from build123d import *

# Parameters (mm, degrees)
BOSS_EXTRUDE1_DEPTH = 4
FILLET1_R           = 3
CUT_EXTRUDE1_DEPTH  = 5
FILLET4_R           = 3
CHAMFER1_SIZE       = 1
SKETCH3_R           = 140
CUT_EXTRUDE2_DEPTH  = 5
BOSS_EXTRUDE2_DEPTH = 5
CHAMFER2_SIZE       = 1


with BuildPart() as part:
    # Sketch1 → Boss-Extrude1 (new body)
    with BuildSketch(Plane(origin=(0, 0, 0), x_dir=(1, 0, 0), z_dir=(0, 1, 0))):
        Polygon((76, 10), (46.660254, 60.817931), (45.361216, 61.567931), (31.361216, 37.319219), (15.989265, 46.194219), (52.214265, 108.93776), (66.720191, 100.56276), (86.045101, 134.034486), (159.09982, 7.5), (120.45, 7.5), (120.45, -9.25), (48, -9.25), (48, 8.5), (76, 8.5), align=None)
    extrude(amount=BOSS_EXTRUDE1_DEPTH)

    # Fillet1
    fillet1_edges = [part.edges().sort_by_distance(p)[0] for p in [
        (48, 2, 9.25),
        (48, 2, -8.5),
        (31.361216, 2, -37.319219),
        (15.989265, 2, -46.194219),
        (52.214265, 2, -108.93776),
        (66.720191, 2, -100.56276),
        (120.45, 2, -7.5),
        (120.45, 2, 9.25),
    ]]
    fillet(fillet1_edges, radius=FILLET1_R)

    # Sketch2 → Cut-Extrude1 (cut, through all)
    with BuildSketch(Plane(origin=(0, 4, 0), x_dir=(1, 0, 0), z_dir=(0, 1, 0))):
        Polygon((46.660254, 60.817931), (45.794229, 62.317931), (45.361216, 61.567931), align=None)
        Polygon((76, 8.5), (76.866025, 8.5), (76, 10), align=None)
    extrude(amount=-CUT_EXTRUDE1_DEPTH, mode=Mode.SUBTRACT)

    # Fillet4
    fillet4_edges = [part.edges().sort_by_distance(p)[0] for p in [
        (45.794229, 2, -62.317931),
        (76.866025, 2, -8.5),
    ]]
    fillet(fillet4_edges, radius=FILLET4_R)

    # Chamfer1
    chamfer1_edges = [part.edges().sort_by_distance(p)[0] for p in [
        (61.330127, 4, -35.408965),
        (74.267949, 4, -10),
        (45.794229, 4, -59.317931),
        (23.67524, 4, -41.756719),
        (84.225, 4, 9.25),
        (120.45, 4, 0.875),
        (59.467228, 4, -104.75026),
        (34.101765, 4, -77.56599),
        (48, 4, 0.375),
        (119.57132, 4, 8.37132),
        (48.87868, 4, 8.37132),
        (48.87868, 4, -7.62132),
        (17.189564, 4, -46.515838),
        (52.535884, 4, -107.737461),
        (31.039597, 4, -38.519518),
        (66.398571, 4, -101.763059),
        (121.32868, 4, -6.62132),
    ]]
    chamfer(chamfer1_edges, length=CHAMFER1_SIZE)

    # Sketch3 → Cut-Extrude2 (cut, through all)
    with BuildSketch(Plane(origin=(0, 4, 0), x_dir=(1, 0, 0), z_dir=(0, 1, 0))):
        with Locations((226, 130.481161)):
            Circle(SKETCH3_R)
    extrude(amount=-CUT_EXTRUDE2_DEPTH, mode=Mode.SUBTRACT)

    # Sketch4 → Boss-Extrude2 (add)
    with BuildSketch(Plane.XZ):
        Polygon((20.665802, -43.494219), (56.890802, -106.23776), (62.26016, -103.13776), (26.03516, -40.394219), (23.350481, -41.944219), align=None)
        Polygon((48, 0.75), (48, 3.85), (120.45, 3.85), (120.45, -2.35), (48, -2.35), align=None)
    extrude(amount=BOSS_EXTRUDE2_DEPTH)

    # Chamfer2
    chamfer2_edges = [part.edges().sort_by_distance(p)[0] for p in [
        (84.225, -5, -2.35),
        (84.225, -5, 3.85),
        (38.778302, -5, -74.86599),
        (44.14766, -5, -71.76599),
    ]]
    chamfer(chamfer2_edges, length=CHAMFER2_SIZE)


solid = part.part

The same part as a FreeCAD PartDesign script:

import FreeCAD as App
import Part
import Sketcher
from FreeCAD import Vector
Q = App.Units.Quantity


def edges_at(feature, points):
    """Names of the edges that pass closest to the given points."""
    edges = feature.Shape.Edges
    near = lambda p: min(range(len(edges)), key=lambda i: edges[i].distToShape(Part.Vertex(*p))[0])
    return sorted({f"Edge{near(p) + 1}" for p in points})

doc = App.newDocument("Part")
body = doc.addObject("PartDesign::Body", "Body")

# Sketch on XZ plane
sketch1 = body.newObject("Sketcher::SketchObject", "Sketch")
sketch1.AttachmentSupport = (doc.getObject("XZ_Plane"), [""])
sketch1.MapMode = "FlatFace"
sketch1.addGeometry([
    Part.LineSegment(Vector(46.7, -60.8, 0), Vector(76, -10, 0)),  # 0
    Part.LineSegment(Vector(76, -10, 0), Vector(76, -8.5, 0)),  # 1
    Part.LineSegment(Vector(76, -8.5, 0), Vector(48, -8.5, 0)),  # 2
    Part.LineSegment(Vector(48, -8.5, 0), Vector(48, 9.2, 0)),  # 3
    Part.LineSegment(Vector(48, 9.2, 0), Vector(120.5, 9.2, 0)),  # 4
    Part.LineSegment(Vector(120.5, 9.2, 0), Vector(120.5, -7.5, 0)),  # 5
    Part.LineSegment(Vector(120.5, -7.5, 0), Vector(159.1, -7.5, 0)),  # 6
    Part.LineSegment(Vector(159.1, -7.5, 0), Vector(86, -134, 0)),  # 7
    Part.LineSegment(Vector(86, -134, 0), Vector(66.7, -100.6, 0)),  # 8
    Part.LineSegment(Vector(66.7, -100.6, 0), Vector(52.2, -108.9, 0)),  # 9
    Part.LineSegment(Vector(52.2, -108.9, 0), Vector(16, -46.2, 0)),  # 10
    Part.LineSegment(Vector(16, -46.2, 0), Vector(31.4, -37.3, 0)),  # 11
    Part.LineSegment(Vector(31.4, -37.3, 0), Vector(45.4, -61.6, 0)),  # 12
    Part.LineSegment(Vector(45.4, -61.6, 0), Vector(46.7, -60.8, 0)),  # 13
], False)
sketch1.addConstraint([
    Sketcher.Constraint("Coincident", 0, 2, 1, 1),
    Sketcher.Constraint("Coincident", 1, 2, 2, 1),
    Sketcher.Constraint("Coincident", 2, 2, 3, 1),
    Sketcher.Constraint("Coincident", 3, 2, 4, 1),
    Sketcher.Constraint("Coincident", 4, 2, 5, 1),
    Sketcher.Constraint("Coincident", 5, 2, 6, 1),
    Sketcher.Constraint("Coincident", 6, 2, 7, 1),
    Sketcher.Constraint("Coincident", 7, 2, 8, 1),
    Sketcher.Constraint("Coincident", 8, 2, 9, 1),
    Sketcher.Constraint("Coincident", 9, 2, 10, 1),
    Sketcher.Constraint("Coincident", 10, 2, 11, 1),
    Sketcher.Constraint("Coincident", 11, 2, 12, 1),
    Sketcher.Constraint("Coincident", 12, 2, 13, 1),
    Sketcher.Constraint("Coincident", 13, 2, 0, 1),
    Sketcher.Constraint("Vertical", 1),
    Sketcher.Constraint("Horizontal", 2),
    Sketcher.Constraint("Vertical", 3),
    Sketcher.Constraint("Horizontal", 4),
    Sketcher.Constraint("Vertical", 5),
    Sketcher.Constraint("Horizontal", 6),
    Sketcher.Constraint("Parallel", 0, 7),
    Sketcher.Constraint("Perpendicular", 8, 9),
    Sketcher.Constraint("Perpendicular", 9, 10),
    Sketcher.Constraint("Perpendicular", 10, 11),
    Sketcher.Constraint("Perpendicular", 11, 12),
    Sketcher.Constraint("Perpendicular", 12, 13),
    Sketcher.Constraint("DistanceX", 2, 2, 2, 1, 28.0),
    Sketcher.Constraint("Angle", 0, Q("60 deg")),
    Sketcher.Constraint("Angle", 8, Q("120 deg")),
    Sketcher.Constraint("Distance", 12, 28.000001),
    Sketcher.Constraint("DistanceY", 1, 1, 1, 2, 1.5),
    Sketcher.Constraint("DistanceX", -1, 1, 0, 2, 76.0),
    Sketcher.Constraint("DistanceY", 0, 2, -1, 1, 10.0),
    Sketcher.Constraint("DistanceY", 1, 2, 5, 2, 1.0),
    Sketcher.Constraint("Distance", 13, 1.5),
    Sketcher.Constraint("DistanceX", 4, 1, 4, 2, 72.45),
    Sketcher.Constraint("DistanceY", 3, 1, 3, 2, 17.75),
    Sketcher.Constraint("Distance", 9, 16.75),
    Sketcher.Constraint("Distance", 10, 72.45),
    Sketcher.Constraint("Distance", 11, 17.75),
    Sketcher.Constraint("DistanceX", 6, 1, 6, 2, 38.64982),
    Sketcher.Constraint("DistanceX", -1, 1, 7, 2, 86.045101),
])
pad1 = body.newObject("PartDesign::Pad", "Pad")
pad1.Profile = sketch1
pad1.Length = 4
pad1.Reversed = True
doc.recompute()

fillet = body.newObject("PartDesign::Fillet", "Fillet")
fillet.Base = (pad1, edges_at(pad1, [
    (48, 2, 9.25),
    (48, 2, -8.5),
    (31.361, 2, -37.319),
    (15.989, 2, -46.194),
    (52.214, 2, -108.938),
    (66.72, 2, -100.563),
    (120.45, 2, -7.5),
    (120.45, 2, 9.25),
]))
fillet.Radius = 3

# Sketch on XZ plane
sketch2 = body.newObject("Sketcher::SketchObject", "Sketch001")
sketch2.AttachmentSupport = (doc.getObject("XZ_Plane"), [""])
sketch2.MapMode = "FlatFace"
sketch2.AttachmentOffset = App.Placement(Vector(0, 0, -4), App.Rotation())
sketch2.addGeometry([
    Part.LineSegment(Vector(46.7, -60.8, 0), Vector(45.8, -62.3, 0)),  # 0
    Part.LineSegment(Vector(45.8, -62.3, 0), Vector(45.4, -61.6, 0)),  # 1
    Part.LineSegment(Vector(45.4, -61.6, 0), Vector(46.7, -60.8, 0)),  # 2
    Part.LineSegment(Vector(76, -8.5, 0), Vector(76.9, -8.5, 0)),  # 3
    Part.LineSegment(Vector(76.9, -8.5, 0), Vector(76, -10, 0)),  # 4
    Part.LineSegment(Vector(76, -10, 0), Vector(76, -8.5, 0)),  # 5
], False)
sketch2.addConstraint([
    Sketcher.Constraint("Coincident", 0, 2, 1, 1),
    Sketcher.Constraint("Coincident", 1, 2, 2, 1),
    Sketcher.Constraint("Coincident", 2, 2, 0, 1),
    Sketcher.Constraint("Coincident", 3, 2, 4, 1),
    Sketcher.Constraint("Coincident", 4, 2, 5, 1),
    Sketcher.Constraint("Coincident", 5, 2, 3, 1),
    Sketcher.Constraint("Horizontal", 3),
    Sketcher.Constraint("Vertical", 5),
    Sketcher.Constraint("Perpendicular", 1, 2),
    Sketcher.Constraint("Parallel", 0, 4),
    Sketcher.Constraint("Equal", 0, 4),
    Sketcher.Constraint("Angle", 0, Q("-119.999988 deg")),
    Sketcher.Constraint("Angle", 1, Q("120.000017 deg")),
    Sketcher.Constraint("DistanceY", 5, 1, 5, 2, 1.5),
    Sketcher.Constraint("DistanceX", -1, 1, 4, 2, 76.0),
    Sketcher.Constraint("DistanceY", 4, 2, -1, 1, 10.0),
    Sketcher.Constraint("DistanceX", -1, 1, 0, 2, 45.794229),
    Sketcher.Constraint("DistanceY", 0, 2, -1, 1, 62.317931),
])
pocket1 = body.newObject("PartDesign::Pocket", "Pocket")
pocket1.Profile = sketch2
pocket1.Type = "ThroughAll"
pocket1.Reversed = True
doc.recompute()

fillet2 = body.newObject("PartDesign::Fillet", "Fillet001")
fillet2.Base = (pocket1, edges_at(pocket1, [(45.794, 2, -62.318), (76.866, 2, -8.5)]))
fillet2.Radius = 3
doc.recompute()

chamfer = body.newObject("PartDesign::Chamfer", "Chamfer")
chamfer.Base = (fillet2, edges_at(fillet2, [
    (61.33, 4, -35.409),
    (74.268, 4, -10),
    (45.794, 4, -59.318),
    (23.675, 4, -41.757),
    (84.225, 4, 9.25),
    (120.45, 4, 0.875),
    (59.467, 4, -104.75),
    (34.102, 4, -77.566),
    (48, 4, 0.375),
    (119.571, 4, 8.371),
    (48.879, 4, 8.371),
    (48.879, 4, -7.621),
    (17.19, 4, -46.516),
    (52.536, 4, -107.737),
    (31.04, 4, -38.52),
    (66.399, 4, -101.763),
    (121.329, 4, -6.621),
]))
chamfer.Size = 1

# Sketch on XZ plane
sketch3 = body.newObject("Sketcher::SketchObject", "Sketch002")
sketch3.AttachmentSupport = (doc.getObject("XZ_Plane"), [""])
sketch3.MapMode = "FlatFace"
sketch3.AttachmentOffset = App.Placement(Vector(0, 0, -4), App.Rotation())
sketch3.addGeometry(Part.Circle(Vector(226, -130, 0), Vector(0, 0, 1), 140), False)
sketch3.addConstraint([
    Sketcher.Constraint("Diameter", 0, 280.0),
    Sketcher.Constraint("DistanceX", -1, 1, 0, 3, 226.0),
    Sketcher.Constraint("DistanceY", 0, 3, -1, 1, 130.481161),
])
pocket2 = body.newObject("PartDesign::Pocket", "Pocket001")
pocket2.Profile = sketch3
pocket2.Type = "ThroughAll"
pocket2.Reversed = True

# Sketch on XZ plane
sketch4 = body.newObject("Sketcher::SketchObject", "Sketch003")
sketch4.AttachmentSupport = (doc.getObject("XZ_Plane"), [""])
sketch4.MapMode = "FlatFace"
sketch4.addGeometry([
    Part.LineSegment(Vector(21, -43, 0), Vector(57, -106, 0)),  # 0
    Part.LineSegment(Vector(57, -106, 0), Vector(62, -103, 0)),  # 1
    Part.LineSegment(Vector(62, -103, 0), Vector(26, -40, 0)),  # 2
    Part.LineSegment(Vector(26, -40, 0), Vector(21, -43, 0)),  # 3
    Part.LineSegment(Vector(48, 4, 0), Vector(48, -2, 0)),  # 4
    Part.LineSegment(Vector(48, -2, 0), Vector(120, -2, 0)),  # 5
    Part.LineSegment(Vector(120, -2, 0), Vector(120, 4, 0)),  # 6
    Part.LineSegment(Vector(120, 4, 0), Vector(48, 4, 0)),  # 7
], False)
sketch4.addConstraint([
    Sketcher.Constraint("Coincident", 0, 2, 1, 1),
    Sketcher.Constraint("Coincident", 1, 2, 2, 1),
    Sketcher.Constraint("Coincident", 2, 2, 3, 1),
    Sketcher.Constraint("Coincident", 3, 2, 0, 1),
    Sketcher.Constraint("Coincident", 4, 2, 5, 1),
    Sketcher.Constraint("Coincident", 5, 2, 6, 1),
    Sketcher.Constraint("Coincident", 6, 2, 7, 1),
    Sketcher.Constraint("Coincident", 7, 2, 4, 1),
    Sketcher.Constraint("Vertical", 4),
    Sketcher.Constraint("Horizontal", 5),
    Sketcher.Constraint("Vertical", 6),
    Sketcher.Constraint("Horizontal", 7),
    Sketcher.Constraint("Perpendicular", 0, 1),
    Sketcher.Constraint("Perpendicular", 1, 2),
    Sketcher.Constraint("Perpendicular", 2, 3),
    Sketcher.Constraint("Angle", 0, Q("-60 deg")),
    Sketcher.Constraint("DistanceY", 4, 2, 4, 1, 6.2),
    Sketcher.Constraint("DistanceX", -1, 1, 4, 2, 48.0),
    Sketcher.Constraint("Distance", 1, 6.2),
    Sketcher.Constraint("DistanceX", 5, 1, 5, 2, 72.45),
    Sketcher.Constraint("Distance", 0, 72.45),
    Sketcher.Constraint("DistanceY", 4, 2, -1, 1, 2.35),
    Sketcher.Constraint("DistanceX", -1, 1, 3, 2, 20.665802),
    Sketcher.Constraint("DistanceY", 0, 2, -1, 1, 106.23776),
])
pad2 = body.newObject("PartDesign::Pad", "Pad001")
pad2.Profile = sketch4
pad2.Length = 5
doc.recompute()

chamfer2 = body.newObject("PartDesign::Chamfer", "Chamfer001")
chamfer2.Base = (pad2, edges_at(pad2, [
    (84.225, -5, -2.35),
    (84.225, -5, 3.85),
    (38.778, -5, -74.866),
    (44.148, -5, -71.766),
]))
chamfer2.Size = 1

doc.recompute()
